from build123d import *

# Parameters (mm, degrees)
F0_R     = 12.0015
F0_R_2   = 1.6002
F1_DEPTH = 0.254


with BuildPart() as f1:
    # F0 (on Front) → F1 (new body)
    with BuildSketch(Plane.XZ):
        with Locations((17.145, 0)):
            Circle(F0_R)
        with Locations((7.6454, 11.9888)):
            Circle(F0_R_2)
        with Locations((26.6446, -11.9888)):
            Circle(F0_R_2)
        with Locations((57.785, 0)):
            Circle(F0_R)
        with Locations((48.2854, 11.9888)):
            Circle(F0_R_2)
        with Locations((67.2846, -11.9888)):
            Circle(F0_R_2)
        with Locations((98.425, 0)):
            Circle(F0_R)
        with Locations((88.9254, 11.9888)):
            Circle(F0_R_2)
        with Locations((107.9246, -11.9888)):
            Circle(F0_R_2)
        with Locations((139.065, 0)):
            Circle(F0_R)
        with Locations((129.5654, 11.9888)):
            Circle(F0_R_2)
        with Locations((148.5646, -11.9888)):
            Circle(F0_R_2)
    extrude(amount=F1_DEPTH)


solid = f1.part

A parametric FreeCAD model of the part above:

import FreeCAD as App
import Part
import Sketcher
from FreeCAD import Vector
Q = App.Units.Quantity

doc = App.newDocument("Part")
params = doc.addObject("Spreadsheet::Sheet", "Params")
for row, (alias, value) in enumerate([
    ("sketch1_diameter", "0.945 in"),
    ("sketch1_diameter2", "0.126 in"),
    ("pad1_length", "0.01 in"),
], start=1):
    params.set(f"A{row}", alias)
    params.set(f"B{row}", "=" + value)
    params.setAlias(f"B{row}", alias)

body = doc.addObject("PartDesign::Body", "Body")
body.AllowCompound = True

sketch1 = body.newObject("Sketcher::SketchObject", "Sketch")
sketch1.AttachmentSupport = (doc.getObject("XZ_Plane"), [""])
sketch1.MapMode = "FlatFace"
sketch1.addGeometry([
    Part.Circle(Vector(17.1, 0, 0), Vector(0, 0, 1), 12),
    Part.Circle(Vector(7.6, 12, 0), Vector(0, 0, 1), 1.6),
    Part.Circle(Vector(26.6, -12, 0), Vector(0, 0, 1), 1.6),
    Part.Circle(Vector(57.8, 0, 0), Vector(0, 0, 1), 12),
    Part.Circle(Vector(48.3, 12, 0), Vector(0, 0, 1), 1.6),
    Part.Circle(Vector(67.3, -12, 0), Vector(0, 0, 1), 1.6),
    Part.Circle(Vector(98.4, 0, 0), Vector(0, 0, 1), 12),
    Part.Circle(Vector(88.9, 12, 0), Vector(0, 0, 1), 1.6),
    Part.Circle(Vector(107.9, -12, 0), Vector(0, 0, 1), 1.6),
    Part.Circle(Vector(139.1, 0, 0), Vector(0, 0, 1), 12),
    Part.Circle(Vector(129.6, 12, 0), Vector(0, 0, 1), 1.6),
    Part.Circle(Vector(148.6, -12, 0), Vector(0, 0, 1), 1.6),
], False)
sketch1.addConstraint([
    Sketcher.Constraint("Equal", 1, 2),
    Sketcher.Constraint("Equal", 0, 3),
    Sketcher.Constraint("Equal", 2, 4),
    Sketcher.Constraint("Equal", 4, 5),
    Sketcher.Constraint("Equal", 3, 6),
    Sketcher.Constraint("Equal", 5, 7),
    Sketcher.Constraint("Equal", 7, 8),
    Sketcher.Constraint("Equal", 6, 9),
    Sketcher.Constraint("Equal", 8, 10),
    Sketcher.Constraint("Equal", 10, 11),
    Sketcher.Constraint("PointOnObject", 0, 3, -1),
    Sketcher.Constraint("PointOnObject", 3, 3, -1),
    Sketcher.Constraint("PointOnObject", 6, 3, -1),
    Sketcher.Constraint("PointOnObject", 9, 3, -1),
    Sketcher.Constraint("Horizontal", 1, 3, 4, 3),
    Sketcher.Constraint("Horizontal", 2, 3, 5, 3),
    Sketcher.Constraint("Horizontal", 4, 3, 7, 3),
    Sketcher.Constraint("Horizontal", 5, 3, 8, 3),
    Sketcher.Constraint("Horizontal", 7, 3, 10, 3),
    Sketcher.Constraint("Horizontal", 8, 3, 11, 3),
    Sketcher.Constraint("Diameter", 0, Q("0.945 in")),
    Sketcher.Constraint("Diameter", 1, Q("0.126 in")),
    Sketcher.Constraint("DistanceX", 0, 3, 3, 3, Q("1.6 in")),
    Sketcher.Constraint("DistanceX", 1, 3, 4, 3, Q("1.6 in")),
    Sketcher.Constraint("DistanceX", 2, 3, 5, 3, Q("1.6 in")),
    Sketcher.Constraint("DistanceX", 3, 3, 6, 3, Q("1.6 in")),
    Sketcher.Constraint("DistanceX", 4, 3, 7, 3, Q("1.6 in")),
    Sketcher.Constraint("DistanceX", 5, 3, 8, 3, Q("1.6 in")),
    Sketcher.Constraint("DistanceX", 6, 3, 9, 3, Q("1.6 in")),
    Sketcher.Constraint("DistanceX", 7, 3, 10, 3, Q("1.6 in")),
    Sketcher.Constraint("DistanceX", 8, 3, 11, 3, Q("1.6 in")),
    Sketcher.Constraint("DistanceX", -1, 1, 0, 3, Q("0.675 in")),
    Sketcher.Constraint("DistanceX", -1, 1, 1, 3, Q("0.301 in")),
    Sketcher.Constraint("DistanceY", -1, 1, 1, 3, Q("0.472 in")),
    Sketcher.Constraint("DistanceX", -1, 1, 2, 3, Q("1.049 in")),
    Sketcher.Constraint("DistanceY", 2, 3, -1, 1, Q("0.472 in")),
])
sketch1.setExpression("Constraints[20]", "Params.sketch1_diameter")
sketch1.setExpression("Constraints[21]", "Params.sketch1_diameter2")
pad1 = body.newObject("PartDesign::Pad", "Pad")
pad1.Profile = sketch1
pad1.setExpression("Length", "Params.pad1_length")

doc.recompute()
